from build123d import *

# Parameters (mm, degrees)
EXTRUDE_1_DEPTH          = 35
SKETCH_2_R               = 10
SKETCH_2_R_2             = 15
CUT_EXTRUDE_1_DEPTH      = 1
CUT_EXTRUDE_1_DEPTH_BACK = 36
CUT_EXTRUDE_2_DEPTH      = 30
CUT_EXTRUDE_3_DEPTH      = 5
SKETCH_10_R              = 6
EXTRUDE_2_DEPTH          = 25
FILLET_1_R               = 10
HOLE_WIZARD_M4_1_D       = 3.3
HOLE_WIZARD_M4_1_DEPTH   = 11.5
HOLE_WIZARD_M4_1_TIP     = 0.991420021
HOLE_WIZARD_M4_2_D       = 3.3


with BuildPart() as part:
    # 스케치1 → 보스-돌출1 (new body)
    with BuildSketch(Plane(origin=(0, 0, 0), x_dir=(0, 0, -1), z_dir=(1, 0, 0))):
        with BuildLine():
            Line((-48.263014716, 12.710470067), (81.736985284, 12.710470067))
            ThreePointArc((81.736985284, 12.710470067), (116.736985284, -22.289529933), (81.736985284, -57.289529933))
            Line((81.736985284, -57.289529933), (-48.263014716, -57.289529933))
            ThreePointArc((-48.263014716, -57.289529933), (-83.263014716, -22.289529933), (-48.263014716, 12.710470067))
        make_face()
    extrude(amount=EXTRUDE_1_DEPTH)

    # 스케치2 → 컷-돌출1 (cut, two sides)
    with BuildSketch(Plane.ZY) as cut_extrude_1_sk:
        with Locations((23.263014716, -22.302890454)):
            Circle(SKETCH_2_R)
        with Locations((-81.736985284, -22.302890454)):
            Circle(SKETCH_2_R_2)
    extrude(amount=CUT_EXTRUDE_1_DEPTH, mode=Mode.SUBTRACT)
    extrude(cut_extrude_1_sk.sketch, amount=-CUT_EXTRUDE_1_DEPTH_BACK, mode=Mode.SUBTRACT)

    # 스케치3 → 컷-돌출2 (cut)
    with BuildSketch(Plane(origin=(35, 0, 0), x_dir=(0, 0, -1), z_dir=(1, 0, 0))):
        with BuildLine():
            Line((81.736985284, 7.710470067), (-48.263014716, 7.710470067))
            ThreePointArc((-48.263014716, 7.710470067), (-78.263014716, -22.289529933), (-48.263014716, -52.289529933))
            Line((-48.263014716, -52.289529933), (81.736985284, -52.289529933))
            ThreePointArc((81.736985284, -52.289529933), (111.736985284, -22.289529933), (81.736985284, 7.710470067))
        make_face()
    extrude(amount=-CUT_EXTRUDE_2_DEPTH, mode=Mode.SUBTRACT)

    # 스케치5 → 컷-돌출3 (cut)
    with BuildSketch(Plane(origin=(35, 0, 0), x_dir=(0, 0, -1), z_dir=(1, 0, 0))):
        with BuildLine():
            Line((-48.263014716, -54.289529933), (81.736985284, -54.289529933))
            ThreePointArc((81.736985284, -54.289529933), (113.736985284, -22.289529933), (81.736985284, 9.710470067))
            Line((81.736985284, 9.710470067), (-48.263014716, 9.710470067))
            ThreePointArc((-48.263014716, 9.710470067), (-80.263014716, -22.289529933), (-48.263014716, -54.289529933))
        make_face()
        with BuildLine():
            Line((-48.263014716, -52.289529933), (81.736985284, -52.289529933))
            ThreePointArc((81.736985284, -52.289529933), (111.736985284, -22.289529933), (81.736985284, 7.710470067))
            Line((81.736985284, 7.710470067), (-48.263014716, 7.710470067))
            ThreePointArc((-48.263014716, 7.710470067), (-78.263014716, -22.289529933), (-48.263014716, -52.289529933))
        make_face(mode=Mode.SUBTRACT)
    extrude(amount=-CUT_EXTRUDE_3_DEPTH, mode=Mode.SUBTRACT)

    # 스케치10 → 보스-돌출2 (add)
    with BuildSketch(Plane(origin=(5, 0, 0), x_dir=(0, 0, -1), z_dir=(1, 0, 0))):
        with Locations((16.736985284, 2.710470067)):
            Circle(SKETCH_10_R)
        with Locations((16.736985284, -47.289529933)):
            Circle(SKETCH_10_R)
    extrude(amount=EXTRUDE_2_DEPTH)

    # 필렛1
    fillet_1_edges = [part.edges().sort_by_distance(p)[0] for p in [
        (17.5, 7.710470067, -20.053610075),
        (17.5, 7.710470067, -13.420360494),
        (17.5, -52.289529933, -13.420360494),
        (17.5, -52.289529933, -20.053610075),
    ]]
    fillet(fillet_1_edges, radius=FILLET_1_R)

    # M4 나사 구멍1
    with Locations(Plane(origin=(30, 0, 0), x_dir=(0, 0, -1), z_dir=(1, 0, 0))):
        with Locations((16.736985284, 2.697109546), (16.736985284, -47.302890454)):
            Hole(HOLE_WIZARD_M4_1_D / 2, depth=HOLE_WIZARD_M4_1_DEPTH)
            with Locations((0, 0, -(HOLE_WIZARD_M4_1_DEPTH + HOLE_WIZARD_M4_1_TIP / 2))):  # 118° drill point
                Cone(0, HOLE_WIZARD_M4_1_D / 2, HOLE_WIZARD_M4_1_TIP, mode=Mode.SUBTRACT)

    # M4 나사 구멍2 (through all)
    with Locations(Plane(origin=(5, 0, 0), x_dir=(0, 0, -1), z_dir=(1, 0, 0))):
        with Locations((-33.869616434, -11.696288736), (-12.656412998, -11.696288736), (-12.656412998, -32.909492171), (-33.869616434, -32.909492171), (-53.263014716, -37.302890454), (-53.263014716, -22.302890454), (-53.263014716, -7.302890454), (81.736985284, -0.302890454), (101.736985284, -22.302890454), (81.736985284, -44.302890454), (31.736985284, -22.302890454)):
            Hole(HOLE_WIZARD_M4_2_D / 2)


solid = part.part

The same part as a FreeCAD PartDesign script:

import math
import FreeCAD as App
import Part
import Sketcher
from FreeCAD import Vector


def edges_at(feature, points):
    """Names of the edges that pass closest to the given points."""
    edges = feature.Shape.Edges
    near = lambda p: min(range(len(edges)), key=lambda i: edges[i].distToShape(Part.Vertex(*p))[0])
    return sorted({f"Edge{near(p) + 1}" for p in points})

doc = App.newDocument("Part")
body = doc.addObject("PartDesign::Body", "Body")

sketch1 = doc.addObject("Sketcher::SketchObject", "Sketch")
body.addObject(sketch1)
sketch1.AttachmentSupport = (doc.YZ_Plane, [""])
sketch1.MapMode = "FlatFace"
sketch1.addGeometry(Part.LineSegment(Vector(13, -82, 0), Vector(13, 48, 0)), False)
sketch1.addGeometry(Part.ArcOfCircle(Part.Circle(Vector(-22, 48, 0), Vector(0, 0, 1), 35), math.radians(0), math.radians(180)), False)
sketch1.addGeometry(Part.LineSegment(Vector(-57, 48, 0), Vector(-57, -82, 0)), False)
sketch1.addGeometry(Part.ArcOfCircle(Part.Circle(Vector(-22, -82, 0), Vector(0, 0, 1), 35), math.radians(180), math.radians(360)), False)
sketch1.addConstraint(Sketcher.Constraint("Tangent", 0, 2, 1, 1))
sketch1.addConstraint(Sketcher.Constraint("Tangent", 1, 2, 2, 1))
sketch1.addConstraint(Sketcher.Constraint("Tangent", 2, 2, 3, 1))
sketch1.addConstraint(Sketcher.Constraint("Tangent", 3, 2, 0, 1))
sketch1.addConstraint(Sketcher.Constraint("Vertical", 0))
sketch1.addConstraint(Sketcher.Constraint("Vertical", 2))
sketch1.addConstraint(Sketcher.Constraint("Radius", 1, 35.0))
sketch1.addConstraint(Sketcher.Constraint("DistanceY", 0, 1, 0, 2, 130.0))
sketch1.addConstraint(Sketcher.Constraint("DistanceX", 1, 3, -1, 1, 22.28953))
sketch1.addConstraint(Sketcher.Constraint("DistanceY", -1, 1, 1, 3, 48.263015))
pad1 = doc.addObject("PartDesign::Pad", "Pad")
body.addObject(pad1)
pad1.Profile = sketch1
pad1.Length = 35

sketch2 = doc.addObject("Sketcher::SketchObject", "Sketch001")
body.addObject(sketch2)
sketch2.AttachmentSupport = (doc.YZ_Plane, [""])
sketch2.MapMode = "FlatFace"
sketch2.addGeometry(Part.Circle(Vector(-22, 23, 0), Vector(0, 0, 1), 10), False)
sketch2.addGeometry(Part.Circle(Vector(-22, -82, 0), Vector(0, 0, 1), 15), False)
sketch2.addConstraint(Sketcher.Constraint("Vertical", 0, 3, 1, 3))
sketch2.addConstraint(Sketcher.Constraint("Diameter", 0, 20.0))
sketch2.addConstraint(Sketcher.Constraint("Diameter", 1, 30.0))
sketch2.addConstraint(Sketcher.Constraint("DistanceY", 1, 3, 0, 3, 105.0))
sketch2.addConstraint(Sketcher.Constraint("DistanceX", 0, 3, -1, 1, 22.30289))
sketch2.addConstraint(Sketcher.Constraint("DistanceY", -1, 1, 0, 3, 23.263015))
pocket1 = doc.addObject("PartDesign::Pocket", "Pocket")
body.addObject(pocket1)
pocket1.Profile = sketch2
pocket1.Type = "ThroughAll"
pocket1.Midplane = True

sketch3 = doc.addObject("Sketcher::SketchObject", "Sketch002")
body.addObject(sketch3)
sketch3.AttachmentSupport = (doc.YZ_Plane, [""])
sketch3.MapMode = "FlatFace"
sketch3.AttachmentOffset = App.Placement(Vector(0, 0, 35), App.Rotation())
sketch3.addGeometry(Part.LineSegment(Vector(8, -82, 0), Vector(8, 48, 0)), False)
sketch3.addGeometry(Part.ArcOfCircle(Part.Circle(Vector(-22, 48, 0), Vector(0, 0, 1), 30), math.radians(0), math.radians(180)), False)
sketch3.addGeometry(Part.LineSegment(Vector(-52, 48, 0), Vector(-52, -82, 0)), False)
sketch3.addGeometry(Part.ArcOfCircle(Part.Circle(Vector(-22, -82, 0), Vector(0, 0, 1), 30), math.radians(180), math.radians(360)), False)
sketch3.addConstraint(Sketcher.Constraint("Tangent", 0, 2, 1, 1))
sketch3.addConstraint(Sketcher.Constraint("Tangent", 1, 2, 2, 1))
sketch3.addConstraint(Sketcher.Constraint("Tangent", 2, 2, 3, 1))
sketch3.addConstraint(Sketcher.Constraint("Tangent", 3, 2, 0, 1))
sketch3.addConstraint(Sketcher.Constraint("Vertical", 0))
sketch3.addConstraint(Sketcher.Constraint("Vertical", 2))
sketch3.addConstraint(Sketcher.Constraint("Radius", 1, 30.0))
sketch3.addConstraint(Sketcher.Constraint("DistanceY", 0, 1, 0, 2, 130.0))
sketch3.addConstraint(Sketcher.Constraint("DistanceX", 1, 3, -1, 1, 22.28953))
sketch3.addConstraint(Sketcher.Constraint("DistanceY", -1, 1, 1, 3, 48.263015))
pocket2 = doc.addObject("PartDesign::Pocket", "Pocket001")
body.addObject(pocket2)
pocket2.Profile = sketch3
pocket2.Length = 30

sketch4 = doc.addObject("Sketcher::SketchObject", "Sketch003")
body.addObject(sketch4)
sketch4.AttachmentSupport = (doc.YZ_Plane, [""])
sketch4.MapMode = "FlatFace"
sketch4.AttachmentOffset = App.Placement(Vector(0, 0, 35), App.Rotation())
sketch4.addGeometry(Part.LineSegment(Vector(-54, 48, 0), Vector(-54, -82, 0)), False)
sketch4.addGeometry(Part.ArcOfCircle(Part.Circle(Vector(-22, -82, 0), Vector(0, 0, 1), 32), math.radians(180), math.radians(360)), False)
sketch4.addGeometry(Part.LineSegment(Vector(10, -82, 0), Vector(10, 48, 0)), False)
sketch4.addGeometry(Part.ArcOfCircle(Part.Circle(Vector(-22, 48, 0), Vector(0, 0, 1), 32), math.radians(0), math.radians(180)), False)
sketch4.addGeometry(Part.LineSegment(Vector(-52, -82, 0), Vector(-52, 48, 0)), False)
sketch4.addGeometry(Part.ArcOfCircle(Part.Circle(Vector(-22, 48, 0), Vector(0, 0, 1), 30), math.radians(0), math.radians(180)), False)
sketch4.addGeometry(Part.LineSegment(Vector(8, 48, 0), Vector(8, -82, 0)), False)
sketch4.addGeometry(Part.ArcOfCircle(Part.Circle(Vector(-22, -82, 0), Vector(0, 0, 1), 30), math.radians(180), math.radians(360)), False)
sketch4.addConstraint(Sketcher.Constraint("Tangent", 0, 2, 1, 1))
sketch4.addConstraint(Sketcher.Constraint("Tangent", 1, 2, 2, 1))
sketch4.addConstraint(Sketcher.Constraint("Tangent", 2, 2, 3, 1))
sketch4.addConstraint(Sketcher.Constraint("Tangent", 3, 2, 0, 1))
sketch4.addConstraint(Sketcher.Constraint("Tangent", 4, 2, 5, 2))
sketch4.addConstraint(Sketcher.Constraint("Tangent", 5, 1, 6, 1))
sketch4.addConstraint(Sketcher.Constraint("Tangent", 6, 2, 7, 2))
sketch4.addConstraint(Sketcher.Constraint("Tangent", 7, 1, 4, 1))
sketch4.addConstraint(Sketcher.Constraint("Vertical", 0))
sketch4.addConstraint(Sketcher.Constraint("Vertical", 2))
sketch4.addConstraint(Sketcher.Constraint("Vertical", 4))
sketch4.addConstraint(Sketcher.Constraint("Vertical", 6))
sketch4.addConstraint(Sketcher.Constraint("Coincident", 5, 3, 3, 3))
sketch4.addConstraint(Sketcher.Constraint("Horizontal", 7, 3, 0, 2))
sketch4.addConstraint(Sketcher.Constraint("Radius", 1, 32.0))
sketch4.addConstraint(Sketcher.Constraint("Radius", 5, 30.0))
sketch4.addConstraint(Sketcher.Constraint("DistanceY", 0, 2, 0, 1, 130.0))
sketch4.addConstraint(Sketcher.Constraint("DistanceX", 1, 3, -1, 1, 22.28953))
sketch4.addConstraint(Sketcher.Constraint("DistanceY", 1, 3, -1, 1, 81.736985))
pocket3 = doc.addObject("PartDesign::Pocket", "Pocket002")
body.addObject(pocket3)
pocket3.Profile = sketch4
pocket3.Length = 5

sketch5 = doc.addObject("Sketcher::SketchObject", "Sketch004")
body.addObject(sketch5)
sketch5.AttachmentSupport = (doc.YZ_Plane, [""])
sketch5.MapMode = "FlatFace"
sketch5.AttachmentOffset = App.Placement(Vector(0, 0, 5), App.Rotation())
sketch5.addGeometry(Part.Circle(Vector(3, -17, 0), Vector(0, 0, 1), 6), False)
sketch5.addGeometry(Part.Circle(Vector(-47, -17, 0), Vector(0, 0, 1), 6), False)
sketch5.addConstraint(Sketcher.Constraint("Equal", 0, 1))
sketch5.addConstraint(Sketcher.Constraint("Horizontal", 0, 3, 1, 3))
sketch5.addConstraint(Sketcher.Constraint("Diameter", 0, 12.0))
sketch5.addConstraint(Sketcher.Constraint("DistanceX", 1, 3, 0, 3, 50.0))
sketch5.addConstraint(Sketcher.Constraint("DistanceX", -1, 1, 0, 3, 2.71047))
sketch5.addConstraint(Sketcher.Constraint("DistanceY", 0, 3, -1, 1, 16.736985))
pad2 = doc.addObject("PartDesign::Pad", "Pad001")
body.addObject(pad2)
pad2.Profile = sketch5
pad2.Length = 25
doc.recompute()

fillet = doc.addObject("PartDesign::Fillet", "Fillet")
body.addObject(fillet)
fillet.Base = (pad2, edges_at(pad2, [
    (17.5, 7.71, -20.054),
    (17.5, 7.71, -13.42),
    (17.5, -52.29, -13.42),
    (17.5, -52.29, -20.054),
]))
fillet.Radius = 10

sketch6 = doc.addObject("Sketcher::SketchObject", "Sketch005")
body.addObject(sketch6)
sketch6.AttachmentSupport = (doc.YZ_Plane, [""])
sketch6.MapMode = "FlatFace"
sketch6.AttachmentOffset = App.Placement(Vector(0, 0, 30), App.Rotation())
sketch6.addGeometry(Part.Circle(Vector(2.7, -16.7, 0), Vector(0, 0, 1), 1.6), False)
sketch6.addGeometry(Part.Circle(Vector(-47.3, -16.7, 0), Vector(0, 0, 1), 1.6), False)
sketch6.addConstraint(Sketcher.Constraint("Equal", 0, 1))
sketch6.addConstraint(Sketcher.Constraint("Horizontal", 0, 3, 1, 3))
sketch6.addConstraint(Sketcher.Constraint("Diameter", 0, 3.3))
sketch6.addConstraint(Sketcher.Constraint("DistanceX", 1, 3, 0, 3, 50.0))
sketch6.addConstraint(Sketcher.Constraint("DistanceX", -1, 1, 0, 3, 2.69711))
sketch6.addConstraint(Sketcher.Constraint("DistanceY", 0, 3, -1, 1, 16.736985))
doc.recompute()
hole = doc.addObject("PartDesign::Hole", "Hole")
body.addObject(hole)
hole.Profile = sketch6
hole.ThreadType = "None"
hole.Diameter = 3.3
hole.DepthType = "Dimension"
hole.Depth = 11.5
hole.DrillPoint = "Angled"
hole.DrillPointAngle = 118

sketch7 = doc.addObject("Sketcher::SketchObject", "Sketch006")
body.addObject(sketch7)
sketch7.AttachmentSupport = (doc.YZ_Plane, [""])
sketch7.MapMode = "FlatFace"
sketch7.AttachmentOffset = App.Placement(Vector(0, 0, 5), App.Rotation())
sketch7.addGeometry(Part.Circle(Vector(-11.7, 33.9, 0), Vector(0, 0, 1), 1.6), False)
sketch7.addGeometry(Part.Circle(Vector(-11.7, 12.7, 0), Vector(0, 0, 1), 1.6), False)
sketch7.addGeometry(Part.Circle(Vector(-32.9, 12.7, 0), Vector(0, 0, 1), 1.6), False)
sketch7.addGeometry(Part.Circle(Vector(-32.9, 33.9, 0), Vector(0, 0, 1), 1.6), False)
sketch7.addGeometry(Part.Circle(Vector(-37.3, 53.3, 0), Vector(0, 0, 1), 1.6), False)
sketch7.addGeometry(Part.Circle(Vector(-22.3, 53.3, 0), Vector(0, 0, 1), 1.6), False)
sketch7.addGeometry(Part.Circle(Vector(-7.3, 53.3, 0), Vector(0, 0, 1), 1.6), False)
sketch7.addGeometry(Part.Circle(Vector(-0.3, -81.7, 0), Vector(0, 0, 1), 1.6), False)
sketch7.addGeometry(Part.Circle(Vector(-22.3, -101.7, 0), Vector(0, 0, 1), 1.6), False)
sketch7.addGeometry(Part.Circle(Vector(-44.3, -81.7, 0), Vector(0, 0, 1), 1.6), False)
sketch7.addGeometry(Part.Circle(Vector(-22.3, -31.7, 0), Vector(0, 0, 1), 1.6), False)
sketch7.addConstraint(Sketcher.Constraint("Equal", 0, 1))
sketch7.addConstraint(Sketcher.Constraint("Equal", 1, 2))
sketch7.addConstraint(Sketcher.Constraint("Equal", 2, 3))
sketch7.addConstraint(Sketcher.Constraint("Equal", 3, 4))
sketch7.addConstraint(Sketcher.Constraint("Equal", 4, 5))
sketch7.addConstraint(Sketcher.Constraint("Equal", 5, 6))
sketch7.addConstraint(Sketcher.Constraint("Equal", 6, 7))
sketch7.addConstraint(Sketcher.Constraint("Equal", 7, 8))
sketch7.addConstraint(Sketcher.Constraint("Equal", 8, 9))
sketch7.addConstraint(Sketcher.Constraint("Equal", 9, 10))
sketch7.addConstraint(Sketcher.Constraint("Horizontal", 1, 3, 2, 3))
sketch7.addConstraint(Sketcher.Constraint("Horizontal", 0, 3, 3, 3))
sketch7.addConstraint(Sketcher.Constraint("Horizontal", 4, 3, 5, 3))
sketch7.addConstraint(Sketcher.Constraint("Horizontal", 5, 3, 6, 3))
sketch7.addConstraint(Sketcher.Constraint("Horizontal", 7, 3, 9, 3))
sketch7.addConstraint(Sketcher.Constraint("Vertical", 0, 3, 1, 3))
sketch7.addConstraint(Sketcher.Constraint("Vertical", 2, 3, 3, 3))
sketch7.addConstraint(Sketcher.Constraint("Vertical", 5, 3, 8, 3))
sketch7.addConstraint(Sketcher.Constraint("Vertical", 8, 3, 10, 3))
sketch7.addConstraint(Sketcher.Constraint("Diameter", 0, 3.3))
sketch7.addConstraint(Sketcher.Constraint("DistanceX", 4, 3, 5, 3, 15.0))
sketch7.addConstraint(Sketcher.Constraint("DistanceX", 5, 3, 6, 3, 15.0))
sketch7.addConstraint(Sketcher.Constraint("DistanceX", 6, 3, 7, 3, 7.0))
sketch7.addConstraint(Sketcher.Constraint("DistanceY", 7, 3, 6, 3, 135.0))
sketch7.addConstraint(Sketcher.Constraint("DistanceY", 8, 3, 7, 3, 20.0))
sketch7.addConstraint(Sketcher.Constraint("DistanceX", 9, 3, 8, 3, 22.0))
sketch7.addConstraint(Sketcher.Constraint("DistanceY", 7, 3, 10, 3, 50.0))
sketch7.addConstraint(Sketcher.Constraint("DistanceX", 4, 3, 3, 3, 4.393398))
sketch7.addConstraint(Sketcher.Constraint("DistanceY", 3, 3, 4, 3, 19.393398))
sketch7.addConstraint(Sketcher.Constraint("DistanceX", 4, 3, 0, 3, 25.606602))
sketch7.addConstraint(Sketcher.Constraint("DistanceY", 2, 3, 4, 3, 40.606602))
sketch7.addConstraint(Sketcher.Constraint("DistanceX", 0, 3, -1, 1, 11.696289))
sketch7.addConstraint(Sketcher.Constraint("DistanceY", -1, 1, 0, 3, 33.869616))
doc.recompute()
hole2 = doc.addObject("PartDesign::Hole", "Hole001")
body.addObject(hole2)
hole2.Profile = sketch7
hole2.ThreadType = "None"
hole2.Diameter = 3.3
hole2.DepthType = "ThroughAll"

doc.recompute()
